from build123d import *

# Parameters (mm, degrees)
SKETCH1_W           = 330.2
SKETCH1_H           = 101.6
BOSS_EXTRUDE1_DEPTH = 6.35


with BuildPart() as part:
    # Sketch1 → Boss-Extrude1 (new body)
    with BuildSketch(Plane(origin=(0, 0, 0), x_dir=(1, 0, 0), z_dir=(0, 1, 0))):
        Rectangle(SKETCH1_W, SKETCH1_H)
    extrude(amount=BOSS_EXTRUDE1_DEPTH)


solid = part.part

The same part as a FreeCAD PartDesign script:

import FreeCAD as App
import Part
import Sketcher

V = App.Vector
Q = App.Units.Quantity

doc = App.newDocument("Part")
body = doc.addObject("PartDesign::Body", "Body")

# Sketch on XZ plane
sketch1 = body.newObject("Sketcher::SketchObject", "Sketch")
sketch1.AttachmentSupport = (doc.getObject("XZ_Plane"), [""])
sketch1.MapMode = "FlatFace"
sketch1.addGeometry([
    Part.LineSegment(V(-165, -51, 0), V(-165, 51, 0)),
    Part.LineSegment(V(-165, 51, 0), V(165, 51, 0)),
    Part.LineSegment(V(165, 51, 0), V(165, -51, 0)),
    Part.LineSegment(V(165, -51, 0), V(-165, -51, 0)),
], False)
sketch1.addConstraint([
    Sketcher.Constraint("Coincident", 0, 2, 1, 1),
    Sketcher.Constraint("Coincident", 1, 2, 2, 1),
    Sketcher.Constraint("Coincident", 2, 2, 3, 1),
    Sketcher.Constraint("Coincident", 3, 2, 0, 1),
    Sketcher.Constraint("Vertical", 0),
    Sketcher.Constraint("Horizontal", 1),
    Sketcher.Constraint("Vertical", 2),
    Sketcher.Constraint("Horizontal", 3),
    Sketcher.Constraint("Symmetric", 0, 2, 2, 2, -1, 1),
    Sketcher.Constraint("DistanceX", 1, 1, 1, 2, Q("13 in")),
    Sketcher.Constraint("DistanceY", 0, 1, 0, 2, Q("4 in")),
])
pad1 = body.newObject("PartDesign::Pad", "Pad")
pad1.Profile = sketch1
pad1.Length = Q("0.25 in")
pad1.Reversed = True

doc.recompute()
